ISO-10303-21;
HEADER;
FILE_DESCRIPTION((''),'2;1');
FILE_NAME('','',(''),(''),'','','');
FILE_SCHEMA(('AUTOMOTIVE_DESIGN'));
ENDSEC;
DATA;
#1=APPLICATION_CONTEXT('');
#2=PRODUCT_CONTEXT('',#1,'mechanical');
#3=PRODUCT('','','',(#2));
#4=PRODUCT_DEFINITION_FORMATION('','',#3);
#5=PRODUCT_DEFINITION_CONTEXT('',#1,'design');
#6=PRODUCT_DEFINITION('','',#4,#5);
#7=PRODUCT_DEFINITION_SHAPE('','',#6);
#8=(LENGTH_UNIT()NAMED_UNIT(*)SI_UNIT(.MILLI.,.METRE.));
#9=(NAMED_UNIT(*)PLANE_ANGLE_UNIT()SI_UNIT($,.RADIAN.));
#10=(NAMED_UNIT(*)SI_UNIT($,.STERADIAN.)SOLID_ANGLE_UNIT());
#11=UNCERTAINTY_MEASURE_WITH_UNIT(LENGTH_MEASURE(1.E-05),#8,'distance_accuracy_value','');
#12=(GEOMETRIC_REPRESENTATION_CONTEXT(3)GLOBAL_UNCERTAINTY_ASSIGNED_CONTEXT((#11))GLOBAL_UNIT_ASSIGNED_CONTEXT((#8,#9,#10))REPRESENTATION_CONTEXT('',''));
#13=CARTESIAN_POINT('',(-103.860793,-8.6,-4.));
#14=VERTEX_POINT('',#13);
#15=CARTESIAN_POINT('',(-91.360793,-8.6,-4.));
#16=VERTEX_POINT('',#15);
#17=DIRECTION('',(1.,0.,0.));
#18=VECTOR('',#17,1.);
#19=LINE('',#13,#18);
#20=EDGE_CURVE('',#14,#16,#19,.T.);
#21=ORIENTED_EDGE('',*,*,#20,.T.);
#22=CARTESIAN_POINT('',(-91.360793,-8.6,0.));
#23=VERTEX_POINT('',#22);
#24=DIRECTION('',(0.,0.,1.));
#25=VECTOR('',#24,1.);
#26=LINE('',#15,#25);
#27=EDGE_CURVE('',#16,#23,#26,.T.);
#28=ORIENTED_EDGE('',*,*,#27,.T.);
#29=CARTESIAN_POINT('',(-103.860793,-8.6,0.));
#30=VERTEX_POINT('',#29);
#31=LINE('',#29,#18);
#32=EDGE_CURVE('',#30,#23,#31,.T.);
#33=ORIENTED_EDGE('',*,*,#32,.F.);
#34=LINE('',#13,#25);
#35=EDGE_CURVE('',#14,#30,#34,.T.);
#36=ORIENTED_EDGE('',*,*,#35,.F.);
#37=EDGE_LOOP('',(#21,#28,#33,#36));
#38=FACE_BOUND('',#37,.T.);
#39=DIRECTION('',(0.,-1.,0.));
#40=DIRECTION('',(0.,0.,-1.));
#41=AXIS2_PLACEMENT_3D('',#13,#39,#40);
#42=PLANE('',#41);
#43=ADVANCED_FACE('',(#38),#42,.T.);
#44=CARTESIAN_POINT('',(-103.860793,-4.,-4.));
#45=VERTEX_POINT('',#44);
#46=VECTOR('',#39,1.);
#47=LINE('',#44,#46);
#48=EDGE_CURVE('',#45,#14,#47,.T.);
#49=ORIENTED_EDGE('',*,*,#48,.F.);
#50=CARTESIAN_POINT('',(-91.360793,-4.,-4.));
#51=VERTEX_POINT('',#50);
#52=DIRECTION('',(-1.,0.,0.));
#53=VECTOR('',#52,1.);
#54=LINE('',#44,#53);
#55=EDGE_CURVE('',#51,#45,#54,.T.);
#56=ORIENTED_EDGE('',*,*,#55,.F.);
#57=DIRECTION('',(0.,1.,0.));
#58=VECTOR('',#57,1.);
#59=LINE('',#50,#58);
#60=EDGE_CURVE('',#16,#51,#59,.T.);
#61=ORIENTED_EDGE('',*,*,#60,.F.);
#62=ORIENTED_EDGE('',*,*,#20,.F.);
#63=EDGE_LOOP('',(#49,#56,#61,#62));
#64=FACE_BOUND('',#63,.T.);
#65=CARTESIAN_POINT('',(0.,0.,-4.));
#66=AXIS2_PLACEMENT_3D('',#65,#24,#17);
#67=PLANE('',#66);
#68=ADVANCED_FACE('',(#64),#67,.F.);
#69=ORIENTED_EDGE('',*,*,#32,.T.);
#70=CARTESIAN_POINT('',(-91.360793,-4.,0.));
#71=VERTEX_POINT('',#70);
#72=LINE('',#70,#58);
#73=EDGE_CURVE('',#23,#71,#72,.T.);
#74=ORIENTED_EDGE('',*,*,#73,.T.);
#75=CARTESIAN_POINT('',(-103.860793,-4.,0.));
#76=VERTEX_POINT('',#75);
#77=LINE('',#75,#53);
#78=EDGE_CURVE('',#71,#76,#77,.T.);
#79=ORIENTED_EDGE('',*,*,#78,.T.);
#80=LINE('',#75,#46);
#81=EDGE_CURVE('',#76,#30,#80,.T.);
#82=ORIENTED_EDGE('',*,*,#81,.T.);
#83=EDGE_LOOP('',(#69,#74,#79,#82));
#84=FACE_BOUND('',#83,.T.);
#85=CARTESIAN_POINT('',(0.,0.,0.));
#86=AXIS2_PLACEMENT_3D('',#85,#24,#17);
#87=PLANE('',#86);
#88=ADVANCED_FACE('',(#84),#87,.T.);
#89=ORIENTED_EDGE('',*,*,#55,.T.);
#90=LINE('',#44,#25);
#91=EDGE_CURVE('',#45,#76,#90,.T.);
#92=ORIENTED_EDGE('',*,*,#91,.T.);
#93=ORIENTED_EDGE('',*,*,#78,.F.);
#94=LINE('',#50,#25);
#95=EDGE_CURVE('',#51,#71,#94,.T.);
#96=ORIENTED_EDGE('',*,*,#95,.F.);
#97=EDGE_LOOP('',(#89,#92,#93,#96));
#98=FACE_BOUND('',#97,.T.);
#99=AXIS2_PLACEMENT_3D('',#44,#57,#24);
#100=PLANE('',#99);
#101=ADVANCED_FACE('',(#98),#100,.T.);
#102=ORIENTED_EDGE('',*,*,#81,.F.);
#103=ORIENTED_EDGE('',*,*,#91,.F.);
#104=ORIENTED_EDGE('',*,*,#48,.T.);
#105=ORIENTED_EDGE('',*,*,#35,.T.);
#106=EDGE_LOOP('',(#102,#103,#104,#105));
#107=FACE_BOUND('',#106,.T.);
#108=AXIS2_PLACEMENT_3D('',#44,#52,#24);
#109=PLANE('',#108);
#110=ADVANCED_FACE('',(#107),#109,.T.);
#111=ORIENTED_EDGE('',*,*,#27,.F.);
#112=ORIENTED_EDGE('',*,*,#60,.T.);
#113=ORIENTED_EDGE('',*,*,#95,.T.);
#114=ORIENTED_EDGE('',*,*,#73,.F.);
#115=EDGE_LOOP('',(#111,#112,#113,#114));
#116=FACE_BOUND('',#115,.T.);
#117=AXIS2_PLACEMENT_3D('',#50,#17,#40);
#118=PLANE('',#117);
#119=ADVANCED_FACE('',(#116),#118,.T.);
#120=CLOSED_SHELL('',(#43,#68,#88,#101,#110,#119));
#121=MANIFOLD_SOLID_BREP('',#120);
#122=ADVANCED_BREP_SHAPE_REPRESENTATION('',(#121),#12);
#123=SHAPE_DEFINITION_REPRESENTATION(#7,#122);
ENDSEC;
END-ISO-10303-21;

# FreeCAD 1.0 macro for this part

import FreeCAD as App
import Part
import Sketcher
from FreeCAD import Vector
Q = App.Units.Quantity


def add_polygon(sketch, points):
    """Adds a closed chain of lines whose ends are joined by coincident constraints."""
    first, n = sketch.GeometryCount, len(points)
    for a, b in zip(points, points[1:] + points[:1]):
        sketch.addGeometry(Part.LineSegment(App.Vector(*a, 0), App.Vector(*b, 0)), False)
    for i in range(n):
        sketch.addConstraint(Sketcher.Constraint("Coincident", first + i, 2, first + (i + 1) % n, 1))

doc = App.newDocument("Part")
body = doc.addObject("PartDesign::Body", "Body")

sketch1 = body.newObject("Sketcher::SketchObject", "Sketch")
sketch1.AttachmentSupport = (doc.getObject("XY_Plane"), [""])
sketch1.MapMode = "FlatFace"
add_polygon(sketch1, [(-103.9, -4), (-103.9, -8.6), (-91.4, -8.6), (-91.4, -4)])
sketch1.addConstraint(Sketcher.Constraint("Vertical", 0))
sketch1.addConstraint(Sketcher.Constraint("Horizontal", 1))
sketch1.addConstraint(Sketcher.Constraint("Vertical", 2))
sketch1.addConstraint(Sketcher.Constraint("Horizontal", 3))
sketch1.addConstraint(Sketcher.Constraint("DistanceX", 1, 1, 1, 2, Q("12.5 mm")))
sketch1.addConstraint(Sketcher.Constraint("DistanceY", 0, 2, 0, 1, Q("4.6 mm")))
sketch1.addConstraint(Sketcher.Constraint("DistanceY", 2, 2, -1, 1, Q("4 mm")))
sketch1.addConstraint(Sketcher.Constraint("DistanceX", 0, 2, -1, 1, Q("103.860793 mm")))
pad1 = body.newObject("PartDesign::Pad", "Pad")
pad1.Profile = sketch1
pad1.Length = 4
pad1.Reversed = True

doc.recompute()
